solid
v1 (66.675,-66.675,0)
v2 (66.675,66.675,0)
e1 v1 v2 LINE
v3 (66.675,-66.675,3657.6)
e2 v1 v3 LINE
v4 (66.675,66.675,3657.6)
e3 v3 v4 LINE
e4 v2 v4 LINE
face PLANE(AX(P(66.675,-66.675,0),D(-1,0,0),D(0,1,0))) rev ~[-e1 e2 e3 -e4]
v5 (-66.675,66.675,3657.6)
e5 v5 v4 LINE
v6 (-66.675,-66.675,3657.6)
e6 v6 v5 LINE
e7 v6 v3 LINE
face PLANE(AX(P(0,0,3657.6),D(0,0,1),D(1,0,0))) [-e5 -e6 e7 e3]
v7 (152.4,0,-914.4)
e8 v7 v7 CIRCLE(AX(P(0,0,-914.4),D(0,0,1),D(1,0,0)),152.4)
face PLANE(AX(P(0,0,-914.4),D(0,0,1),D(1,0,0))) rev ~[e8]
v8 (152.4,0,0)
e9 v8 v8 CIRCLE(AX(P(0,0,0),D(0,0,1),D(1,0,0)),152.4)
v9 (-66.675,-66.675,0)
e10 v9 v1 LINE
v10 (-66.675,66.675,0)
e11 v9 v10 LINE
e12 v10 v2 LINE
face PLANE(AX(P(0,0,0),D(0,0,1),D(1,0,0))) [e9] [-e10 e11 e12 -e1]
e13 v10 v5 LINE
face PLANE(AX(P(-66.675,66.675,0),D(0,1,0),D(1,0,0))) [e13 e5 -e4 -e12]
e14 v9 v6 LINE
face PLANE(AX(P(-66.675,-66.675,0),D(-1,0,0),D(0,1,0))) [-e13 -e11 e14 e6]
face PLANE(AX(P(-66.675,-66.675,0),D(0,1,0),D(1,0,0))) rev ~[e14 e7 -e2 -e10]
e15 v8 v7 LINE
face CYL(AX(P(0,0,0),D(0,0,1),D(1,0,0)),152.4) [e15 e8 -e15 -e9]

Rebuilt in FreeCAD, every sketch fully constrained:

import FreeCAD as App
import Part
import Sketcher

V = App.Vector
Q = App.Units.Quantity


def add_polygon(sketch, points):
    """Adds a closed chain of lines whose ends are joined by coincident constraints."""
    first, n = sketch.GeometryCount, len(points)
    for a, b in zip(points, points[1:] + points[:1]):
        sketch.addGeometry(Part.LineSegment(App.Vector(*a, 0), App.Vector(*b, 0)), False)
    for i in range(n):
        sketch.addConstraint(Sketcher.Constraint("Coincident", first + i, 2, first + (i + 1) % n, 1))

doc = App.newDocument("Part")
body = doc.addObject("PartDesign::Body", "Body")

# Sketch on XY plane
sketch1 = doc.addObject("Sketcher::SketchObject", "Sketch")
body.addObject(sketch1)
sketch1.AttachmentSupport = (doc.XY_Plane, [""])
sketch1.MapMode = "FlatFace"
sketch1.addGeometry(Part.Circle(V(0, 0, 0), V(0, 0, 1), 152.4), False)
sketch1.addConstraint([
    Sketcher.Constraint("Coincident", 0, 3, -1, 1),
    Sketcher.Constraint("Diameter", 0, Q("12 in")),
])
pad1 = doc.addObject("PartDesign::Pad", "Pad")
body.addObject(pad1)
pad1.Profile = sketch1
pad1.Length = Q("36 in")
pad1.Reversed = True

# Sketch on XY plane
sketch2 = doc.addObject("Sketcher::SketchObject", "Sketch001")
body.addObject(sketch2)
sketch2.AttachmentSupport = (doc.XY_Plane, [""])
sketch2.MapMode = "FlatFace"
add_polygon(sketch2, [(-66.675, 66.675), (-66.675, -66.675), (66.675, -66.675), (66.675, 66.675)])  # lines 0-3
sketch2.addConstraint([
    Sketcher.Constraint("Vertical", 0),
    Sketcher.Constraint("Horizontal", 1),
    Sketcher.Constraint("Vertical", 2),
    Sketcher.Constraint("Horizontal", 3),
    Sketcher.Constraint("Symmetric", 0, 2, 2, 2, -1, 1),
    Sketcher.Constraint("Equal", 3, 0),
    Sketcher.Constraint("DistanceX", 1, 1, 1, 2, Q("5.25 in")),
])
pad2 = doc.addObject("PartDesign::Pad", "Pad001")
body.addObject(pad2)
pad2.Profile = sketch2
pad2.Length = Q("144 in")

doc.recompute()
